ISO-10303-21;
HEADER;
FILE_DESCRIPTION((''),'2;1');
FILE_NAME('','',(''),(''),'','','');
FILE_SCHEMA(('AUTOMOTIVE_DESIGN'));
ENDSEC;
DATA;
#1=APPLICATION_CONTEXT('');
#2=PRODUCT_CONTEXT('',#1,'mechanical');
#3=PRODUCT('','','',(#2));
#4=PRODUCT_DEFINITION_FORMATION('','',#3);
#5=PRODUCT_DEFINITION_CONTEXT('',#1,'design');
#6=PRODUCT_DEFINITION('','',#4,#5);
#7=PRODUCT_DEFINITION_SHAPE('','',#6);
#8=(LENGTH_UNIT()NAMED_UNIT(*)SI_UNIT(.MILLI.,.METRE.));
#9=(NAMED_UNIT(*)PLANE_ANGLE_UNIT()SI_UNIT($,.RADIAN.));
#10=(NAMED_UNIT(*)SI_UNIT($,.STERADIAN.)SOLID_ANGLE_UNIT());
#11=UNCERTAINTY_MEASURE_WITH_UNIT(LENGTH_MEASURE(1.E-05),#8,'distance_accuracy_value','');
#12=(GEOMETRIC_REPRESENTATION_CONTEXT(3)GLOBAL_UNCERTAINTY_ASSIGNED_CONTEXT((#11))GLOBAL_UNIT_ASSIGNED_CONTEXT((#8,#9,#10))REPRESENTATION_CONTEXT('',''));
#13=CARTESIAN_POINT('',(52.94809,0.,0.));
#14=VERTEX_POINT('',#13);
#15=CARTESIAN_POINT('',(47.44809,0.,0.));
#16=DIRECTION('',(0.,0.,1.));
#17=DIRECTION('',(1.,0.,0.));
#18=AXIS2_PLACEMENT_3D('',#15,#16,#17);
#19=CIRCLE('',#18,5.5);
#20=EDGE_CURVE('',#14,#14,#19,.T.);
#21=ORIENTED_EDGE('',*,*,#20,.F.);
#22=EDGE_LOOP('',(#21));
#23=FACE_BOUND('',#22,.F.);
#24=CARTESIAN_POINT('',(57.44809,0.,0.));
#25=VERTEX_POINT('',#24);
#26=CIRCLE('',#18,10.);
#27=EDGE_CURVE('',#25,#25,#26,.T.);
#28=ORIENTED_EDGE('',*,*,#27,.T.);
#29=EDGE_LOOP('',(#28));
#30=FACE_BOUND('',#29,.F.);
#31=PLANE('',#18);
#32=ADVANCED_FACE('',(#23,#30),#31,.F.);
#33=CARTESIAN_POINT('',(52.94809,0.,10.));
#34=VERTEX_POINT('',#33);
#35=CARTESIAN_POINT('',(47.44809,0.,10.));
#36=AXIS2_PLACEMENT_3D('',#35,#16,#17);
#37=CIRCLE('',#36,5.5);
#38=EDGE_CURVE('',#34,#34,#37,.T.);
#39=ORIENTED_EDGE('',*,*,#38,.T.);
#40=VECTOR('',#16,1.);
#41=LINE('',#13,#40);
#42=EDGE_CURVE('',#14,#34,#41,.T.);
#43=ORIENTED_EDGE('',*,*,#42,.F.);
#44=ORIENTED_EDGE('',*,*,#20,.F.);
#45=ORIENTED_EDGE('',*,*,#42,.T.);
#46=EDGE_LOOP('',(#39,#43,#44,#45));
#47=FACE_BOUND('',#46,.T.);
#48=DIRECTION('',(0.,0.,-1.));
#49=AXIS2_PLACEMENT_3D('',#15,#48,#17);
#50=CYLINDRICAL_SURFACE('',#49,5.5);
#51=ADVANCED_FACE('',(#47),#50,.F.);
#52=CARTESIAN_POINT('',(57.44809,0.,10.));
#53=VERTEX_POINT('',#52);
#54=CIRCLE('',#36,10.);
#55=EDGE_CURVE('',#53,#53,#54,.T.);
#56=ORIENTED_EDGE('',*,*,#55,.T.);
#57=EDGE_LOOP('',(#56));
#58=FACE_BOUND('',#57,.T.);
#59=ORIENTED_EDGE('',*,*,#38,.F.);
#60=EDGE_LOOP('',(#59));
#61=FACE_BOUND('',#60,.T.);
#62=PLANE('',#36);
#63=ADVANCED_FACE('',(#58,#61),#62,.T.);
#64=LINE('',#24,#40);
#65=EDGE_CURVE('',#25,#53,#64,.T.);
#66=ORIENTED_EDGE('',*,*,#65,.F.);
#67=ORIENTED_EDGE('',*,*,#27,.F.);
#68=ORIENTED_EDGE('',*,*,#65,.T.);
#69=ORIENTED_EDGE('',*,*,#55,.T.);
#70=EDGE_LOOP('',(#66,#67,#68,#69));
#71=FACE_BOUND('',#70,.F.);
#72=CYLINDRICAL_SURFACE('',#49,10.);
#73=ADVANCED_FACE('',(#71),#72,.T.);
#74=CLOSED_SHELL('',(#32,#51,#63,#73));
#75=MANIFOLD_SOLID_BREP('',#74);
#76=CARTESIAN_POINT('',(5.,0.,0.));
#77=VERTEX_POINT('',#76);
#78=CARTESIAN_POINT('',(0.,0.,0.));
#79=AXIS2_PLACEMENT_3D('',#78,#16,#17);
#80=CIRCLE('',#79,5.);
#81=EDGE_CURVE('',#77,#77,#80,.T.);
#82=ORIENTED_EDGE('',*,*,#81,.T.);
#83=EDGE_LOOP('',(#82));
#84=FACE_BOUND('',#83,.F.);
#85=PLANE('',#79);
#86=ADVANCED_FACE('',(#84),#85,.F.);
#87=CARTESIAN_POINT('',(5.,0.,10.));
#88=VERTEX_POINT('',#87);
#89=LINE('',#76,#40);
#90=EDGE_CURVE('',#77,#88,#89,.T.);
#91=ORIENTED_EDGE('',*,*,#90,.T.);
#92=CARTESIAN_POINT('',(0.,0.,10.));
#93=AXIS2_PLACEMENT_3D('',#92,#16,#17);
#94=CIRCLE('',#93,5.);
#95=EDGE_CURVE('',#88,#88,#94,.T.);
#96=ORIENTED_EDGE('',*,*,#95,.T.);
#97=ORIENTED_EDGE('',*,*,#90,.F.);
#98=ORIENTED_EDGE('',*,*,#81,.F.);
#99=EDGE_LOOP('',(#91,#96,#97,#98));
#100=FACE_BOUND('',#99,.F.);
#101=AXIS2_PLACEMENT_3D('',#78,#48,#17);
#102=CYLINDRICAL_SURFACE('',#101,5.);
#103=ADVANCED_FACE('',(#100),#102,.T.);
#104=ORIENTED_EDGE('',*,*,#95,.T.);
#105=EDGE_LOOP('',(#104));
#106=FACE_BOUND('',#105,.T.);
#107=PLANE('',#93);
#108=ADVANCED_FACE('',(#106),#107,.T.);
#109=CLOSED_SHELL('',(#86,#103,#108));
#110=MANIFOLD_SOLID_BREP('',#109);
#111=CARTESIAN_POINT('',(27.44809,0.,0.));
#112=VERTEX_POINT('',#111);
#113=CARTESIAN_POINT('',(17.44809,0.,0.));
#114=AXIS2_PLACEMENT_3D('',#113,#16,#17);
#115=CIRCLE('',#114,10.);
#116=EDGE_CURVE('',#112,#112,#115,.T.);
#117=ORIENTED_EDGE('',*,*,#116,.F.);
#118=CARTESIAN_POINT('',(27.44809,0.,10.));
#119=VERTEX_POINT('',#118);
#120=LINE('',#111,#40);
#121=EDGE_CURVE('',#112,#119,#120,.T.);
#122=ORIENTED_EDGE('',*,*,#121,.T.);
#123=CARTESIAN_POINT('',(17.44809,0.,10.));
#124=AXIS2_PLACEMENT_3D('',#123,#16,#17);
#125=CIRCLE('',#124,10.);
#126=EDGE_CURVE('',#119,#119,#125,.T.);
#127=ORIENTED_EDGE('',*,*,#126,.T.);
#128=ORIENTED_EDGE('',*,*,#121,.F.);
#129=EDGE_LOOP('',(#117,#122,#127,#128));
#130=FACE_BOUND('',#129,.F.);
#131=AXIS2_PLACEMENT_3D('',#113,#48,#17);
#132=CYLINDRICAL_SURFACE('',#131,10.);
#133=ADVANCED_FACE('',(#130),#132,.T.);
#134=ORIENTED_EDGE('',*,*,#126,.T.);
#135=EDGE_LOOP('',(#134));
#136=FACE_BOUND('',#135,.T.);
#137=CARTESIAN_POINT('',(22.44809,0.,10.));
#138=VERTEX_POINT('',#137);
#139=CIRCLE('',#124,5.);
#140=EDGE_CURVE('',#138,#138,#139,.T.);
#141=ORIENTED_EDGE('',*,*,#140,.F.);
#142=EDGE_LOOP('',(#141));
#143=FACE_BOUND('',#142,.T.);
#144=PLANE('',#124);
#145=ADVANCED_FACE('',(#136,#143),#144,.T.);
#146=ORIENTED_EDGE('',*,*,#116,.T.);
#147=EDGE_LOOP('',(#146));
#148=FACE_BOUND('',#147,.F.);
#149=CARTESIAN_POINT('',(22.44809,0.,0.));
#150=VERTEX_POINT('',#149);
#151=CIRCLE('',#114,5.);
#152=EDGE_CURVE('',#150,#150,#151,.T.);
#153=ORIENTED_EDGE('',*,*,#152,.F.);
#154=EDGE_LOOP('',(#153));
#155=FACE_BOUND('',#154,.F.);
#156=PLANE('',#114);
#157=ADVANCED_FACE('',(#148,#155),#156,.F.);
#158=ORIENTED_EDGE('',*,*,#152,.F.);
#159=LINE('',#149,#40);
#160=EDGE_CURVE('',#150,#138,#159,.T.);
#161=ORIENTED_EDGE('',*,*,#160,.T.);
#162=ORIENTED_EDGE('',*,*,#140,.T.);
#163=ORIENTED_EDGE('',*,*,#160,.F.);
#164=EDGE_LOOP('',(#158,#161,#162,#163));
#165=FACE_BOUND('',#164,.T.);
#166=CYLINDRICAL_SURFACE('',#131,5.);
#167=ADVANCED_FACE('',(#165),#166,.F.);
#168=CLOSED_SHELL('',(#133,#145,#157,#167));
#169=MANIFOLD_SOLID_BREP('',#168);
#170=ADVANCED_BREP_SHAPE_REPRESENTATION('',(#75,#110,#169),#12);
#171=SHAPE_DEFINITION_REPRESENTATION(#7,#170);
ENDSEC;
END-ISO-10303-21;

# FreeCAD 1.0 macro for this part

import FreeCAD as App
import Part
import Sketcher

doc = App.newDocument("Part")
body = doc.addObject("PartDesign::Body", "Body")

# Sketch on XY plane
sketch1 = body.newObject("Sketcher::SketchObject", "Sketch")
sketch1.AttachmentSupport = (doc.getObject("XY_Plane"), [""])
sketch1.MapMode = "FlatFace"
sketch1.addGeometry(Part.Circle(App.Vector(0, 0, 0), App.Vector(0, 0, 1), 5), False)
sketch1.addConstraint([
    Sketcher.Constraint("Coincident", 0, 3, -1, 1),
    Sketcher.Constraint("Diameter", 0, 10.0),
])
pad1 = body.newObject("PartDesign::Pad", "Pad")
pad1.Profile = sketch1
pad1.Length = 10
body2 = doc.addObject("PartDesign::Body", "Body001")

# Sketch on XY plane
sketch2 = body2.newObject("Sketcher::SketchObject", "Sketch001")
sketch2.AttachmentSupport = (doc.getObject("XY_Plane001"), [""])
sketch2.MapMode = "FlatFace"
sketch2.addGeometry([
    Part.Circle(App.Vector(17.44809, 0, 0), App.Vector(0, 0, 1), 10),
    Part.Circle(App.Vector(17.44809, 0, 0), App.Vector(0, 0, 1), 5),
], False)
sketch2.addConstraint([
    Sketcher.Constraint("Coincident", 1, 3, 0, 3),
    Sketcher.Constraint("PointOnObject", 0, 3, -1),
    Sketcher.Constraint("Diameter", 0, 20.0),
    Sketcher.Constraint("Diameter", 1, 10.0),
    Sketcher.Constraint("DistanceX", -1, 1, 0, 3, 17.44809),
])
pad2 = body2.newObject("PartDesign::Pad", "Pad001")
pad2.Profile = sketch2
pad2.Length = 10
body3 = doc.addObject("PartDesign::Body", "Body002")

# Sketch on XY plane
sketch3 = body3.newObject("Sketcher::SketchObject", "Sketch002")
sketch3.AttachmentSupport = (doc.getObject("XY_Plane002"), [""])
sketch3.MapMode = "FlatFace"
sketch3.addGeometry([
    Part.Circle(App.Vector(47.44809, 0, 0), App.Vector(0, 0, 1), 10),
    Part.Circle(App.Vector(47.44809, 0, 0), App.Vector(0, 0, 1), 5.5),
], False)
sketch3.addConstraint([
    Sketcher.Constraint("Coincident", 1, 3, 0, 3),
    Sketcher.Constraint("PointOnObject", 0, 3, -1),
    Sketcher.Constraint("Diameter", 0, 20.0),
    Sketcher.Constraint("Diameter", 1, 11.0),
    Sketcher.Constraint("DistanceX", -1, 1, 0, 3, 47.44809),
])
pad3 = body3.newObject("PartDesign::Pad", "Pad002")
pad3.Profile = sketch3
pad3.Length = 10

doc.recompute()
